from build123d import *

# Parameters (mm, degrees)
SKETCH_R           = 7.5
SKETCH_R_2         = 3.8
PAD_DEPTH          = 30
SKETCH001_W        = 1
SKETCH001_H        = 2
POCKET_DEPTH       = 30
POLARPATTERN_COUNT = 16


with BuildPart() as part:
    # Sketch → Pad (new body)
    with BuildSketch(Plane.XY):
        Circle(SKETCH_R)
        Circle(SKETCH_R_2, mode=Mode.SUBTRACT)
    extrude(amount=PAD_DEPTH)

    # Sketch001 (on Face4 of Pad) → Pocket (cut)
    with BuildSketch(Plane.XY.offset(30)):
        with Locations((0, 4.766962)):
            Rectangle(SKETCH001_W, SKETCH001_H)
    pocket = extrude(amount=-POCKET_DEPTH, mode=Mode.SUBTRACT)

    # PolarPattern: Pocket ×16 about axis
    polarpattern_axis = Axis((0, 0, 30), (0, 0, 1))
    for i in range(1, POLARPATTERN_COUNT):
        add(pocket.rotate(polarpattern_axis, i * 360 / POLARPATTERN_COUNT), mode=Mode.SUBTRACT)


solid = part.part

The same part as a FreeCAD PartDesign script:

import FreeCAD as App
import Part
import Sketcher
from FreeCAD import Vector
Q = App.Units.Quantity

doc = App.newDocument("Part")
params = doc.addObject("Spreadsheet::Sheet", "Params")
for row, (alias, value) in enumerate([
    ("sketch1_diameter", "15 mm"),
    ("sketch1_diameter2", "7.6 mm"),
    ("pad1_length", "30 mm"),
    ("sketch2_width", "1 mm"),
    ("sketch2_height", "2 mm"),
    ("pocket1_length", "30 mm"),
], start=1):
    params.set(f"A{row}", alias)
    params.set(f"B{row}", "=" + value)
    params.setAlias(f"B{row}", alias)

body = doc.addObject("PartDesign::Body", "Body")

sketch1 = body.newObject("Sketcher::SketchObject", "Sketch")
sketch1.AttachmentSupport = (doc.getObject("XY_Plane"), [""])
sketch1.MapMode = "FlatFace"
sketch1.addGeometry(Part.Circle(Vector(0, 0, 0), Vector(0, 0, 1), 7.5), False)
sketch1.addGeometry(Part.Circle(Vector(0, 0, 0), Vector(0, 0, 1), 3.8), False)
sketch1.addConstraint(Sketcher.Constraint("Coincident", 0, 3, -1, 1))
sketch1.addConstraint(Sketcher.Constraint("Coincident", 1, 3, -1, 1))
sketch1.addConstraint(Sketcher.Constraint("Diameter", 0, Q("15 mm")))
sketch1.addConstraint(Sketcher.Constraint("Diameter", 1, Q("7.6 mm")))
sketch1.setExpression("Constraints[2]", "Params.sketch1_diameter")
sketch1.setExpression("Constraints[3]", "Params.sketch1_diameter2")
pad1 = body.newObject("PartDesign::Pad", "Pad")
pad1.Profile = sketch1
pad1.setExpression("Length", "Params.pad1_length")

sketch2 = body.newObject("Sketcher::SketchObject", "Sketch001")
sketch2.AttachmentSupport = (doc.getObject("XY_Plane"), [""])
sketch2.MapMode = "FlatFace"
sketch2.AttachmentOffset = App.Placement(Vector(0, 0, 30), App.Rotation())
sketch2.addGeometry(Part.LineSegment(Vector(-0.5, 5.8, 0), Vector(-0.5, 3.8, 0)), False)
sketch2.addGeometry(Part.LineSegment(Vector(-0.5, 3.8, 0), Vector(0.5, 3.8, 0)), False)
sketch2.addGeometry(Part.LineSegment(Vector(0.5, 3.8, 0), Vector(0.5, 5.8, 0)), False)
sketch2.addGeometry(Part.LineSegment(Vector(0.5, 5.8, 0), Vector(-0.5, 5.8, 0)), False)
sketch2.addConstraint(Sketcher.Constraint("Coincident", 0, 2, 1, 1))
sketch2.addConstraint(Sketcher.Constraint("Coincident", 1, 2, 2, 1))
sketch2.addConstraint(Sketcher.Constraint("Coincident", 2, 2, 3, 1))
sketch2.addConstraint(Sketcher.Constraint("Coincident", 3, 2, 0, 1))
sketch2.addConstraint(Sketcher.Constraint("Vertical", 0))
sketch2.addConstraint(Sketcher.Constraint("Horizontal", 1))
sketch2.addConstraint(Sketcher.Constraint("Vertical", 2))
sketch2.addConstraint(Sketcher.Constraint("Horizontal", 3))
sketch2.addConstraint(Sketcher.Constraint("DistanceX", 1, 1, 1, 2, Q("1 mm")))
sketch2.addConstraint(Sketcher.Constraint("DistanceY", 0, 2, 0, 1, Q("2 mm")))
sketch2.addConstraint(Sketcher.Constraint("DistanceX", 0, 2, -1, 1, Q("0.5 mm")))
sketch2.addConstraint(Sketcher.Constraint("DistanceY", -1, 1, 0, 2, Q("3.766962 mm")))
sketch2.setExpression("Constraints[8]", "Params.sketch2_width")
sketch2.setExpression("Constraints[9]", "Params.sketch2_height")
pocket1 = body.newObject("PartDesign::Pocket", "Pocket")
pocket1.Profile = sketch2
pocket1.setExpression("Length", "Params.pocket1_length")
doc.recompute()

polarpattern = body.newObject("PartDesign::PolarPattern", "PolarPattern")
polarpattern.Originals = [pocket1]
polarpattern.Axis = (doc.getObject("Z_Axis"), [""])
polarpattern.Angle = 360
polarpattern.Occurrences = 16
body.Tip = polarpattern

doc.recompute()
